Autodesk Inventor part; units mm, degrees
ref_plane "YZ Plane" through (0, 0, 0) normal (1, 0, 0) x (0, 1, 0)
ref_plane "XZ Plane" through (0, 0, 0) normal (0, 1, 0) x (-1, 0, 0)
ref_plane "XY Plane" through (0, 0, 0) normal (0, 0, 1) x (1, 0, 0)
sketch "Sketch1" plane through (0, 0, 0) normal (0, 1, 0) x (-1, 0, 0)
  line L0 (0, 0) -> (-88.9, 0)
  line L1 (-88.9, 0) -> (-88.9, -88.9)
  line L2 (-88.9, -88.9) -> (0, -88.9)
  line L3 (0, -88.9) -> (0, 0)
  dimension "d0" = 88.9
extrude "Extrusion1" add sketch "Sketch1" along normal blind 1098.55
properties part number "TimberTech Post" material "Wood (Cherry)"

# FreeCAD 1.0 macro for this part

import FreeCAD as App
import Part
import Sketcher
from FreeCAD import Vector
Q = App.Units.Quantity


def add_polygon(sketch, points):
    """Adds a closed chain of lines whose ends are joined by coincident constraints."""
    first, n = sketch.GeometryCount, len(points)
    for a, b in zip(points, points[1:] + points[:1]):
        sketch.addGeometry(Part.LineSegment(App.Vector(*a, 0), App.Vector(*b, 0)), False)
    for i in range(n):
        sketch.addConstraint(Sketcher.Constraint("Coincident", first + i, 2, first + (i + 1) % n, 1))

doc = App.newDocument("Part")
body = doc.addObject("PartDesign::Body", "Body")

sketch1 = doc.addObject("Sketcher::SketchObject", "Sketch")
body.addObject(sketch1)
sketch1.AttachmentSupport = (doc.XZ_Plane, [""])
sketch1.MapMode = "FlatFace"
add_polygon(sketch1, [(0, -89), (0, 0), (89, 0), (89, -89)])
sketch1.addConstraint([
    Sketcher.Constraint("Vertical", 0),
    Sketcher.Constraint("Horizontal", 1),
    Sketcher.Constraint("Vertical", 2),
    Sketcher.Constraint("Horizontal", 3),
    Sketcher.Constraint("Coincident", 0, 2, -1, 1),
    Sketcher.Constraint("Equal", 3, 0),
    Sketcher.Constraint("DistanceX", 1, 1, 1, 2, Q("3.5 in")),
])
pad1 = doc.addObject("PartDesign::Pad", "Pad")
body.addObject(pad1)
pad1.Profile = sketch1
pad1.Length = Q("43.25 in")
pad1.Reversed = True

doc.recompute()
